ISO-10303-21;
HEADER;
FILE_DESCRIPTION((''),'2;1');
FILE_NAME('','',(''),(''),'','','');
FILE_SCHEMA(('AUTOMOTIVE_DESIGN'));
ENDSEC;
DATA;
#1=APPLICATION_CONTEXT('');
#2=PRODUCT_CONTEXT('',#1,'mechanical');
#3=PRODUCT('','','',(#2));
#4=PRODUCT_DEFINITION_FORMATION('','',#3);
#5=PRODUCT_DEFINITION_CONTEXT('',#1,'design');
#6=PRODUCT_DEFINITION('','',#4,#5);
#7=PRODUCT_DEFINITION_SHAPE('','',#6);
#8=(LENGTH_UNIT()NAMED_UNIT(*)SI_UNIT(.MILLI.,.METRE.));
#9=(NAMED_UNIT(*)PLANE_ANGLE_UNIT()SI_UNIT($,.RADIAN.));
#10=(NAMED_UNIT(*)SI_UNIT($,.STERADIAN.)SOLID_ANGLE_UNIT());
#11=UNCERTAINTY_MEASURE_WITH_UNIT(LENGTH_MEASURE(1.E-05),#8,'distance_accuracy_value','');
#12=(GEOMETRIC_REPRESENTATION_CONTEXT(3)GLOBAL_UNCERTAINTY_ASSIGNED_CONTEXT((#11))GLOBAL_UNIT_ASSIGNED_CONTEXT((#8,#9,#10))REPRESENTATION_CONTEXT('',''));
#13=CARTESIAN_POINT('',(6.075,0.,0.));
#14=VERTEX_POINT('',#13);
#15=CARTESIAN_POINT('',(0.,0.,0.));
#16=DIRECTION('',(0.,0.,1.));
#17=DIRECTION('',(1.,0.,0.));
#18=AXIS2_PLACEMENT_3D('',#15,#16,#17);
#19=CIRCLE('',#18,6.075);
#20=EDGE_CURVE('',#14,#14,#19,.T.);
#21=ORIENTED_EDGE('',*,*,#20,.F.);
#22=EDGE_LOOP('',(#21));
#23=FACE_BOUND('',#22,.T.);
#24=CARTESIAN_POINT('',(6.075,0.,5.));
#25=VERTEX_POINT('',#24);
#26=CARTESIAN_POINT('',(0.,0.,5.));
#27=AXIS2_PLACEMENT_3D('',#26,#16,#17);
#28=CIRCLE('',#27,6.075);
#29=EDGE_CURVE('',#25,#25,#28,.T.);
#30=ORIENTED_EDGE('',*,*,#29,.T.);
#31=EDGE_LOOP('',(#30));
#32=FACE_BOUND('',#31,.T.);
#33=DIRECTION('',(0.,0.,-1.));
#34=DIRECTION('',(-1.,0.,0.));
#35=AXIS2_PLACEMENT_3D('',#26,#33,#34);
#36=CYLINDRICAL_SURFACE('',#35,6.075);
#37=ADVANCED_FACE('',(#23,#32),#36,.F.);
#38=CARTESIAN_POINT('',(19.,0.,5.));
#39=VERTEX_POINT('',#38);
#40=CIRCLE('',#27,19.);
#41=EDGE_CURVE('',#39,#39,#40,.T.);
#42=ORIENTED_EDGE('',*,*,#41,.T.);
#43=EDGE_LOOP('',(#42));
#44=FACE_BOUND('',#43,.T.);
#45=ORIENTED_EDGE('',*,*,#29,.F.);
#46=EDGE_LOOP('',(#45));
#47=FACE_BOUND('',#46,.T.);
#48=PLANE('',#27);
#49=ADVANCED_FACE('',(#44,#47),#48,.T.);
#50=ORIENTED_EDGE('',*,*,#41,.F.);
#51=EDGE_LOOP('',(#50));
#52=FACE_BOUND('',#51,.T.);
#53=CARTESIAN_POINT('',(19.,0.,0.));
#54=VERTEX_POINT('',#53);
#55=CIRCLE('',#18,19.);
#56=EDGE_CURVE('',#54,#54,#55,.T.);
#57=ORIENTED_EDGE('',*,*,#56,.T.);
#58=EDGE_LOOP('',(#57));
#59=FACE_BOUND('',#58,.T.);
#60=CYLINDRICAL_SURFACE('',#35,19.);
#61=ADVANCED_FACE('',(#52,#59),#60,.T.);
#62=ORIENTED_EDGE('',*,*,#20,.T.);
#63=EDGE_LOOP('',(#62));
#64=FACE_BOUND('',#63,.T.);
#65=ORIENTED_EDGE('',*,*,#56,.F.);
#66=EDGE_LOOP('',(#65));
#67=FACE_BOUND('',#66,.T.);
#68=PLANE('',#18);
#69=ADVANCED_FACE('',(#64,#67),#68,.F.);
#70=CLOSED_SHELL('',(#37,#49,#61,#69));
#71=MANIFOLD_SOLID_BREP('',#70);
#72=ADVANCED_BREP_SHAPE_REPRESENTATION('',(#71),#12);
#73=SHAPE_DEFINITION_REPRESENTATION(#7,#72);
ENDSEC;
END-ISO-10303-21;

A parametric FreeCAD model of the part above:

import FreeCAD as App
import Part
import Sketcher

V = App.Vector
Q = App.Units.Quantity

doc = App.newDocument("Part")
body = doc.addObject("PartDesign::Body", "Body")

# Sketch on XY plane
sketch1 = doc.addObject("Sketcher::SketchObject", "Sketch")
body.addObject(sketch1)
sketch1.AttachmentSupport = (doc.XY_Plane, [""])
sketch1.MapMode = "FlatFace"
sketch1.addGeometry(Part.Circle(V(0, 0, 0), V(0, 0, 1), 19), False)
sketch1.addGeometry(Part.Circle(V(0, 0, 0), V(0, 0, 1), 6), False)
sketch1.addConstraint(Sketcher.Constraint("Coincident", 0, 3, -1, 1))
sketch1.addConstraint(Sketcher.Constraint("Coincident", 1, 3, -1, 1))
sketch1.addConstraint(Sketcher.Constraint("Diameter", 0, Q("38 mm")))
sketch1.addConstraint(Sketcher.Constraint("Diameter", 1, Q("12.15 mm")))
pad1 = doc.addObject("PartDesign::Pad", "Pad")
body.addObject(pad1)
pad1.Profile = sketch1
pad1.Length = 5

doc.recompute()
